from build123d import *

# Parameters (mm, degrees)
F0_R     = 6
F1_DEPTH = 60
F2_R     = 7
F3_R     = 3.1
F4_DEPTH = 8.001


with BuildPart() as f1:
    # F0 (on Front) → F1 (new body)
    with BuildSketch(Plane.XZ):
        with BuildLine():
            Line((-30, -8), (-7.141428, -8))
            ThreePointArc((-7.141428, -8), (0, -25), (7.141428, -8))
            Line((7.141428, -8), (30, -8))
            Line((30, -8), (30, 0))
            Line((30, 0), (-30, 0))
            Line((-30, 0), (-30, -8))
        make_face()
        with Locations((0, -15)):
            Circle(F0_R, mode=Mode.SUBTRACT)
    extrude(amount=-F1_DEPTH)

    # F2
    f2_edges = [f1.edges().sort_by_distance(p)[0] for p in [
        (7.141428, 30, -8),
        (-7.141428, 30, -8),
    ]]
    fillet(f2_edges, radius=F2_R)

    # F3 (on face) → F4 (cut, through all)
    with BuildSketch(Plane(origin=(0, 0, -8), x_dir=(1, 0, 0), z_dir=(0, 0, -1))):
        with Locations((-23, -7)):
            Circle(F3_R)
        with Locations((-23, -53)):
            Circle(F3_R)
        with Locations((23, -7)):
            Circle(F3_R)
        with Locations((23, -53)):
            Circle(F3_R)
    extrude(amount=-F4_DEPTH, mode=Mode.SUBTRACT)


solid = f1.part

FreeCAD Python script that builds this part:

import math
import FreeCAD as App
import Part
import Sketcher

V = App.Vector
Q = App.Units.Quantity


def edges_at(feature, points):
    """Names of the edges that pass closest to the given points."""
    edges = feature.Shape.Edges
    near = lambda p: min(range(len(edges)), key=lambda i: edges[i].distToShape(Part.Vertex(*p))[0])
    return sorted({f"Edge{near(p) + 1}" for p in points})

doc = App.newDocument("Part")
body = doc.addObject("PartDesign::Body", "Body")

# Sketch on XZ plane
sketch1 = doc.addObject("Sketcher::SketchObject", "Sketch")
body.addObject(sketch1)
sketch1.AttachmentSupport = (doc.XZ_Plane, [""])
sketch1.MapMode = "FlatFace"
sketch1.addGeometry([
    Part.LineSegment(V(-30, -8, 0), V(-7.141428, -8, 0)),  # 0
    Part.ArcOfCircle(Part.Circle(V(0, -15, 0), V(0, 0, 1), 10), math.radians(135.572994), math.radians(404.427006)),  # 1
    Part.LineSegment(V(7.141428, -8, 0), V(30, -8, 0)),  # 2
    Part.LineSegment(V(30, -8, 0), V(30, 0, 0)),  # 3
    Part.LineSegment(V(30, 0, 0), V(-30, 0, 0)),  # 4
    Part.LineSegment(V(-30, 0, 0), V(-30, -8, 0)),  # 5
    Part.Circle(V(0, -15, 0), V(0, 0, 1), 6),  # 6
], False)
sketch1.addConstraint([
    Sketcher.Constraint("Coincident", 0, 2, 1, 1),
    Sketcher.Constraint("Coincident", 1, 2, 2, 1),
    Sketcher.Constraint("Coincident", 2, 2, 3, 1),
    Sketcher.Constraint("Coincident", 3, 2, 4, 1),
    Sketcher.Constraint("Coincident", 4, 2, 5, 1),
    Sketcher.Constraint("Coincident", 5, 2, 0, 1),
    Sketcher.Constraint("Horizontal", 0),
    Sketcher.Constraint("Horizontal", 2),
    Sketcher.Constraint("Vertical", 3),
    Sketcher.Constraint("Horizontal", 4),
    Sketcher.Constraint("Vertical", 5),
    Sketcher.Constraint("Coincident", 6, 3, 1, 3),
    Sketcher.Constraint("Symmetric", 3, 2, 4, 2, -1, 1),
    Sketcher.Constraint("Symmetric", 0, 2, 1, 2, -2),
    Sketcher.Constraint("Diameter", 6, Q("12 mm")),
    Sketcher.Constraint("Radius", 1, Q("10 mm")),
    Sketcher.Constraint("DistanceX", 4, 2, 4, 1, Q("60 mm")),
    Sketcher.Constraint("DistanceY", 3, 1, 3, 2, Q("8 mm")),
    Sketcher.Constraint("DistanceY", 1, 3, -1, 1, Q("15 mm")),
])
pad1 = doc.addObject("PartDesign::Pad", "Pad")
body.addObject(pad1)
pad1.Profile = sketch1
pad1.Length = 60
pad1.Reversed = True
doc.recompute()

fillet = doc.addObject("PartDesign::Fillet", "Fillet")
body.addObject(fillet)
fillet.Base = (pad1, edges_at(pad1, [(7.141, 30, -8), (-7.141, 30, -8)]))
fillet.Radius = 7

# Sketch on XY plane
sketch2 = doc.addObject("Sketcher::SketchObject", "Sketch001")
body.addObject(sketch2)
sketch2.AttachmentSupport = (doc.XY_Plane, [""])
sketch2.MapMode = "FlatFace"
sketch2.AttachmentOffset = App.Placement(V(0, 0, -8), App.Rotation())
sketch2.addGeometry([
    Part.Circle(V(-23, 7, 0), V(0, 0, 1), 3.1),
    Part.Circle(V(-23, 53, 0), V(0, 0, 1), 3.1),
    Part.Circle(V(23, 7, 0), V(0, 0, 1), 3.1),
    Part.Circle(V(23, 53, 0), V(0, 0, 1), 3.1),
], False)
sketch2.addConstraint([
    Sketcher.Constraint("Equal", 0, 1),
    Sketcher.Constraint("Equal", 1, 2),
    Sketcher.Constraint("Equal", 2, 3),
    Sketcher.Constraint("Symmetric", 0, 3, 2, 3, -2),
    Sketcher.Constraint("Symmetric", 1, 3, 3, 3, -2),
    Sketcher.Constraint("Vertical", 0, 3, 1, 3),
    Sketcher.Constraint("Diameter", 0, Q("6.2 mm")),
    Sketcher.Constraint("DistanceX", 0, 3, -1, 1, Q("23 mm")),
    Sketcher.Constraint("DistanceY", -1, 1, 0, 3, Q("7 mm")),
    Sketcher.Constraint("DistanceY", -1, 1, 1, 3, Q("53 mm")),
])
pocket1 = doc.addObject("PartDesign::Pocket", "Pocket")
body.addObject(pocket1)
pocket1.Profile = sketch2
pocket1.Type = "ThroughAll"
pocket1.Reversed = True

doc.recompute()
